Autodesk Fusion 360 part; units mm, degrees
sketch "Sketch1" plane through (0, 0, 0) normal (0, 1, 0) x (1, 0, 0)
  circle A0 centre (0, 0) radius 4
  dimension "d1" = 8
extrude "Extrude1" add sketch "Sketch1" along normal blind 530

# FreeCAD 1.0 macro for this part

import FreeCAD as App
import Part
import Sketcher

V = App.Vector

doc = App.newDocument("Part")
body = doc.addObject("PartDesign::Body", "Body")

sketch1 = body.newObject("Sketcher::SketchObject", "Sketch")
sketch1.AttachmentSupport = (doc.getObject("XZ_Plane"), [""])
sketch1.MapMode = "FlatFace"
sketch1.addGeometry(Part.Circle(V(0, 0, 0), V(0, 0, 1), 4), False)
sketch1.addConstraint([
    Sketcher.Constraint("Coincident", 0, 3, -1, 1),
    Sketcher.Constraint("Diameter", 0, 8.0),
])
pad1 = body.newObject("PartDesign::Pad", "Pad")
pad1.Profile = sketch1
pad1.Length = 530
pad1.Reversed = True

doc.recompute()
